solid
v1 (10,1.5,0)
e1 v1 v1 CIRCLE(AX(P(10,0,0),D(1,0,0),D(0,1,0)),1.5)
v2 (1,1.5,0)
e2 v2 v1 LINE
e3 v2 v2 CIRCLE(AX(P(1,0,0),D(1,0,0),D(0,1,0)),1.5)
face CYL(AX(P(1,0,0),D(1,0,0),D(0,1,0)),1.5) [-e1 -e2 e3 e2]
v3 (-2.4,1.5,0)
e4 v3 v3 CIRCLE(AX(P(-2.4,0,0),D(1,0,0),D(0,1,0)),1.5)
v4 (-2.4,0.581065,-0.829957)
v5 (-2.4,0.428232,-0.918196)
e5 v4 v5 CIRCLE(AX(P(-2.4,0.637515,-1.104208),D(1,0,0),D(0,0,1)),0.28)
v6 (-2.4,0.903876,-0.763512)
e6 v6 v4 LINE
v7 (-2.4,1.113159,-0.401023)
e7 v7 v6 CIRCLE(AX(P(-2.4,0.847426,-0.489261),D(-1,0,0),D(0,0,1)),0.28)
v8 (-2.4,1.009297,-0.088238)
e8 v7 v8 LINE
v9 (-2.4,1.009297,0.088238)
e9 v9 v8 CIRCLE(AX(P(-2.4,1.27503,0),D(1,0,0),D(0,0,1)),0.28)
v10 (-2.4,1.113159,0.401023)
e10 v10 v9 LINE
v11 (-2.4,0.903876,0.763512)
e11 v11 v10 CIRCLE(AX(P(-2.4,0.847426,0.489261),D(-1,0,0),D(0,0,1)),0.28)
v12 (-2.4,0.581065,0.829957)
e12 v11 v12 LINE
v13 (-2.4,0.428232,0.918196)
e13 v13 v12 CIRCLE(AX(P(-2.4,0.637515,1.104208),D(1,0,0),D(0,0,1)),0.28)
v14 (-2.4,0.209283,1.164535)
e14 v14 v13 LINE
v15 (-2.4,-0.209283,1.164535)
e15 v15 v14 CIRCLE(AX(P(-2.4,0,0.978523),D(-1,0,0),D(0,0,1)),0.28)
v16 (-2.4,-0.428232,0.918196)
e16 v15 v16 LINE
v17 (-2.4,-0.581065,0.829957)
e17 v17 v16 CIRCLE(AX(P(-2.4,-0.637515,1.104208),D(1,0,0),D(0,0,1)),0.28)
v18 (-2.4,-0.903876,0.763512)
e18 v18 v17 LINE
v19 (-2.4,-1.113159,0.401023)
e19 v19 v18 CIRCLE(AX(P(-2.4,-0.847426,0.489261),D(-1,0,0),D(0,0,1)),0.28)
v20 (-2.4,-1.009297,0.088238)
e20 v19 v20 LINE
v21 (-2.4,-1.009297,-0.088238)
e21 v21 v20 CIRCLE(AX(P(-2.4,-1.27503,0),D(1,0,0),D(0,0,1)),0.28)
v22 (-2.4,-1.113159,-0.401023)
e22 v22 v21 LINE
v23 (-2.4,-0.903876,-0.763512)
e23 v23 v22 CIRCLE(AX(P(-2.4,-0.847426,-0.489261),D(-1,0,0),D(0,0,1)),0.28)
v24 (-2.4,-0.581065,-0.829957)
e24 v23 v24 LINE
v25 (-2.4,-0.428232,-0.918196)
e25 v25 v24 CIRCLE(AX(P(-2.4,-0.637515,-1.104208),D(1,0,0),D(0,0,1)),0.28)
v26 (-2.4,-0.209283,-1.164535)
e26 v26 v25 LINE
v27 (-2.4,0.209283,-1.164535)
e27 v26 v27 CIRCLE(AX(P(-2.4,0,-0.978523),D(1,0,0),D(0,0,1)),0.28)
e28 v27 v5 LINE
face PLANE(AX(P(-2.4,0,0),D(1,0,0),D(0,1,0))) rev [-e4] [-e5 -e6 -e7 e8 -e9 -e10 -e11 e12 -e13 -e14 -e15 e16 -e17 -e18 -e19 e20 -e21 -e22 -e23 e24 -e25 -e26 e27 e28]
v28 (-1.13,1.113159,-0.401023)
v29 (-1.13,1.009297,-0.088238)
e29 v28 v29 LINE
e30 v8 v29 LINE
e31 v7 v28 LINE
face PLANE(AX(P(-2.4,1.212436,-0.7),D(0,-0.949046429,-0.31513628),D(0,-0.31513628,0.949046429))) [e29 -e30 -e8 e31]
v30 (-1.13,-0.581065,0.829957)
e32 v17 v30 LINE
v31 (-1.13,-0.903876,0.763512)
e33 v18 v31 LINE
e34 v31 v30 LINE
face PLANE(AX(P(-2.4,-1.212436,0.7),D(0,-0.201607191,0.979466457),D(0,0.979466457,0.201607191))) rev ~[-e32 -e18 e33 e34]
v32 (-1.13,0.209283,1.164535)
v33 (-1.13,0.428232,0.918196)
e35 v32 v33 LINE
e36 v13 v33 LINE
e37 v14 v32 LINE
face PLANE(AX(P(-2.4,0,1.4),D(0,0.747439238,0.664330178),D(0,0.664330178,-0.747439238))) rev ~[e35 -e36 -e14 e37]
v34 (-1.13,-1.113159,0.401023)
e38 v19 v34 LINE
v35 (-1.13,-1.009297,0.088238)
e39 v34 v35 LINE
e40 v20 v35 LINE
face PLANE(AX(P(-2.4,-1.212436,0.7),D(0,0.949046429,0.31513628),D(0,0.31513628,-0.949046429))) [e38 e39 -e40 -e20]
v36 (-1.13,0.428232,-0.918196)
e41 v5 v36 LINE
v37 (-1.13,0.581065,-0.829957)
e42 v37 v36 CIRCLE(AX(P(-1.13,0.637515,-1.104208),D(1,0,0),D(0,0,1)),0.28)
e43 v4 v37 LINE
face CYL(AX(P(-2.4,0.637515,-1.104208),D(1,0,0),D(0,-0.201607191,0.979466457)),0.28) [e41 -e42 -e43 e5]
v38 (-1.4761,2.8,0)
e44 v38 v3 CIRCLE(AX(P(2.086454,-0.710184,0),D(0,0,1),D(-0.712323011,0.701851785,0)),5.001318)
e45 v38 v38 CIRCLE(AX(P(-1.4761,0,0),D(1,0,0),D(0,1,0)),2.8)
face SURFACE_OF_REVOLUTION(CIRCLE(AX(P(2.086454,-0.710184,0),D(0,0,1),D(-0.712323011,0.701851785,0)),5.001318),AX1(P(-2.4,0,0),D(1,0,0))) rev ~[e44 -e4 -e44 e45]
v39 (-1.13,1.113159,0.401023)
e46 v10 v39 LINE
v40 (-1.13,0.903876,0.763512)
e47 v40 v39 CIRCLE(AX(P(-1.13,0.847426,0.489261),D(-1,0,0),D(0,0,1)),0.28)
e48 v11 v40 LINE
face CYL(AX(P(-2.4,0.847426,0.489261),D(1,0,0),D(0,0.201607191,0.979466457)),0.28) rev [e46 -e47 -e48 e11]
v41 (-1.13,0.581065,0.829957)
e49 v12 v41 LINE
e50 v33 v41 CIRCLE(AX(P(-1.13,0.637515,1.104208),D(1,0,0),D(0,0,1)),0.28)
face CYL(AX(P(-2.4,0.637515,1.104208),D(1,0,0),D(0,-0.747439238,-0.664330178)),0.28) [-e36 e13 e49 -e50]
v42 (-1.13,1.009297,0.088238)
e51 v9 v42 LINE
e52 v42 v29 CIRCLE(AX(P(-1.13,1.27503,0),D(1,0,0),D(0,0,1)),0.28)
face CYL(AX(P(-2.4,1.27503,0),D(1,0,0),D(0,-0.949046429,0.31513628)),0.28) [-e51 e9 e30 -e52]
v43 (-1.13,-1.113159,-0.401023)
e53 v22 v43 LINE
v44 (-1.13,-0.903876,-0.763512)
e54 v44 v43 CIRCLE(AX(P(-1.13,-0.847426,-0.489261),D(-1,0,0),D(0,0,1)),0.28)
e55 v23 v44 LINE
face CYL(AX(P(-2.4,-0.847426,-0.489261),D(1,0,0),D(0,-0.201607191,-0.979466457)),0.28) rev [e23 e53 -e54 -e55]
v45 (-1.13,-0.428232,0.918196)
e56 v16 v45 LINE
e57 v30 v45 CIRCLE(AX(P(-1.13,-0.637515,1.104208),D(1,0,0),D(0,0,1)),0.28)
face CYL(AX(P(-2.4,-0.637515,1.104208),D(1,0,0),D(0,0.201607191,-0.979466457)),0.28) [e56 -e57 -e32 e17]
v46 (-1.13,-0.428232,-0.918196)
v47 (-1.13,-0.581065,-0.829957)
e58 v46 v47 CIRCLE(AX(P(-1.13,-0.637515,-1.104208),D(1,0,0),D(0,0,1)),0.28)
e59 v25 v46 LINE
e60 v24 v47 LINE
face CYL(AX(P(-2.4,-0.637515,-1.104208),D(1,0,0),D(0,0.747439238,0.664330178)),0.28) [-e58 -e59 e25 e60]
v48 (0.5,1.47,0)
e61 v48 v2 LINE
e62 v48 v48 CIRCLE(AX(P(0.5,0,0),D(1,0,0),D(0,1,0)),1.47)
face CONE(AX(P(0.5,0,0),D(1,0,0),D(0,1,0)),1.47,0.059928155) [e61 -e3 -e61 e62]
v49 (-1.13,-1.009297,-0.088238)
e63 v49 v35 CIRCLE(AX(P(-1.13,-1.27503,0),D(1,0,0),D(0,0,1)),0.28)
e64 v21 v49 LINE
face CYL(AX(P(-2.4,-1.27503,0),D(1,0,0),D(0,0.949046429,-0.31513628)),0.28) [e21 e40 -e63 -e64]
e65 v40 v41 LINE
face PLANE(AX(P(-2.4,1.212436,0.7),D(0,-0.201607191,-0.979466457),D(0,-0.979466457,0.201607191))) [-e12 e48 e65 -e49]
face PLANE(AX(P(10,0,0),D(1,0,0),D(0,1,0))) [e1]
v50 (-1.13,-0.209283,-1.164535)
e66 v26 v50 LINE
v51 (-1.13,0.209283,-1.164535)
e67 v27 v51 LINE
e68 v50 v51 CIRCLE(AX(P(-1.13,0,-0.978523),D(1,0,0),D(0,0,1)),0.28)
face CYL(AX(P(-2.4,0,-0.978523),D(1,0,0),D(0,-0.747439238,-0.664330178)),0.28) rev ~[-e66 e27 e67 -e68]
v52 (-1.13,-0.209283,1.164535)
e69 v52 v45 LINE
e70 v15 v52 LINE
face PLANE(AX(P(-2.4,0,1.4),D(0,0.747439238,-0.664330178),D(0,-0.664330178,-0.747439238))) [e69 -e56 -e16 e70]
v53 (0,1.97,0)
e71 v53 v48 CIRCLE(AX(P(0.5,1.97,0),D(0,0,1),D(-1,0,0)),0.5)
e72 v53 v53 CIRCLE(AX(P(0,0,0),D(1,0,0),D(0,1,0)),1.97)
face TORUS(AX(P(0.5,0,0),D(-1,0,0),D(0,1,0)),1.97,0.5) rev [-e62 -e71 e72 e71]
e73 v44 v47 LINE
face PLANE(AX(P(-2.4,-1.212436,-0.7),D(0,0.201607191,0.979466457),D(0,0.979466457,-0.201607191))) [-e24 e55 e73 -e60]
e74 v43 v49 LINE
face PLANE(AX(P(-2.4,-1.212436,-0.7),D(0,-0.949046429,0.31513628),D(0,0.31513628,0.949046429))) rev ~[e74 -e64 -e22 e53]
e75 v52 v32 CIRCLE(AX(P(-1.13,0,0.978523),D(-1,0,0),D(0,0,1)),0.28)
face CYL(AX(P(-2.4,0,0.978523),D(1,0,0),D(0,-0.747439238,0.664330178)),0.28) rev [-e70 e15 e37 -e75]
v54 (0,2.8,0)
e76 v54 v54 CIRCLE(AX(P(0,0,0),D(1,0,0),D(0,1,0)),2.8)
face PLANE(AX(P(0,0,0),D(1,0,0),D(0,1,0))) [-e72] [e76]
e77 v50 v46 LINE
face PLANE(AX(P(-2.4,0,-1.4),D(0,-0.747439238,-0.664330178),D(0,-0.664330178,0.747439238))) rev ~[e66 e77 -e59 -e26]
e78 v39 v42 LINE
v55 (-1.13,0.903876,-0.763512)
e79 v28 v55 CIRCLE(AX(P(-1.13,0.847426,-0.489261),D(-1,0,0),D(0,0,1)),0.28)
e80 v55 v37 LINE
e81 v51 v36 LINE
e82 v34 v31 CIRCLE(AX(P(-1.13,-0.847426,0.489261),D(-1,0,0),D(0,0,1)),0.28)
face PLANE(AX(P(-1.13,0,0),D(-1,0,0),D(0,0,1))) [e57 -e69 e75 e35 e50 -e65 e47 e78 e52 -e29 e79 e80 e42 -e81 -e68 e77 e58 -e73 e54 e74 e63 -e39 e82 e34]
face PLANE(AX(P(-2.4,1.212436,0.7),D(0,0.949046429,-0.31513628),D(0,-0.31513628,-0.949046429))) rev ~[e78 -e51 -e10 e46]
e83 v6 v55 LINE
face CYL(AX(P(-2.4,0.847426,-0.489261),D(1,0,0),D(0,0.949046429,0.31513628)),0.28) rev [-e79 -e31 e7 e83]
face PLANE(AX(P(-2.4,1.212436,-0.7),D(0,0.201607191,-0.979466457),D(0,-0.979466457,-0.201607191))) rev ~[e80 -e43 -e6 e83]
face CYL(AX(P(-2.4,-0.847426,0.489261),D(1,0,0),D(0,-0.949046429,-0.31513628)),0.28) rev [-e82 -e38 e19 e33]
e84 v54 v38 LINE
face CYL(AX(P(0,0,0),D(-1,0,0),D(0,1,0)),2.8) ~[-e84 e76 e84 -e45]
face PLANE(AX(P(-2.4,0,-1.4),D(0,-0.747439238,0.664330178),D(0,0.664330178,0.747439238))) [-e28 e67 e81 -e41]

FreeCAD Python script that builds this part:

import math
import FreeCAD as App
import Part
import Sketcher
Q = App.Units.Quantity


def edges_at(feature, points):
    """Names of the edges that pass closest to the given points."""
    edges = feature.Shape.Edges
    near = lambda p: min(range(len(edges)), key=lambda i: edges[i].distToShape(Part.Vertex(*p))[0])
    return sorted({f"Edge{near(p) + 1}" for p in points})


def add_polygon(sketch, points):
    """Adds a closed chain of lines whose ends are joined by coincident constraints."""
    first, n = sketch.GeometryCount, len(points)
    for a, b in zip(points, points[1:] + points[:1]):
        sketch.addGeometry(Part.LineSegment(App.Vector(*a, 0), App.Vector(*b, 0)), False)
    for i in range(n):
        sketch.addConstraint(Sketcher.Constraint("Coincident", first + i, 2, first + (i + 1) % n, 1))

doc = App.newDocument("Part")
params = doc.addObject("Spreadsheet::Sheet", "Params")
for row, (alias, value) in enumerate([
    ("sketch1_radius", "0.5 mm"),
    ("sketch1_width", "9 mm"),
    ("sketch1_height", "1.5 mm"),
    ("sketch1_height2", "0.83 mm"),
    ("revolution_angle", "360 deg"),
    ("pocket1_length", "1.27 mm"),
    ("fillet_radius", "0.28 mm"),
], start=1):
    params.set(f"A{row}", alias)
    params.set(f"B{row}", "=" + value)
    params.setAlias(f"B{row}", alias)

body = doc.addObject("PartDesign::Body", "Body")

sketch1 = body.newObject("Sketcher::SketchObject", "Sketch")
sketch1.AttachmentSupport = (doc.getObject("XY_Plane"), [""])
sketch1.MapMode = "FlatFace"
sketch1.addGeometry([
    Part.LineSegment(App.Vector(-2.4, 1.5, 0), App.Vector(-2.4, 0, 0)),
    Part.LineSegment(App.Vector(-2.4, 0, 0), App.Vector(10, 0, 0)),
    Part.LineSegment(App.Vector(10, 0, 0), App.Vector(10, 1.5, 0)),
    Part.LineSegment(App.Vector(10, 1.5, 0), App.Vector(1, 1.5, 0)),
    Part.LineSegment(App.Vector(1, 1.5, 0), App.Vector(0.5, 1.47, 0)),
    Part.ArcOfCircle(Part.Circle(App.Vector(0.5, 1.97, 0), App.Vector(0, 0, 1), 0.5), math.radians(180), math.radians(270)),
    Part.LineSegment(App.Vector(0, 1.97, 0), App.Vector(0, 2.8, 0)),
    Part.LineSegment(App.Vector(0, 2.8, 0), App.Vector(-1.4761, 2.8, 0)),
    Part.ArcOfCircle(Part.Circle(App.Vector(2.086454, -0.710184, 0), App.Vector(0, 0, 1), 5.001318), math.radians(135.424238), math.radians(153.773532)),
], False)
sketch1.addConstraint([
    Sketcher.Constraint("Coincident", 0, 2, 1, 1),
    Sketcher.Constraint("Coincident", 1, 2, 2, 1),
    Sketcher.Constraint("Coincident", 2, 2, 3, 1),
    Sketcher.Constraint("Coincident", 3, 2, 4, 1),
    Sketcher.Constraint("Coincident", 4, 2, 5, 2),
    Sketcher.Constraint("Tangent", 5, 1, 6, 1),
    Sketcher.Constraint("Coincident", 6, 2, 7, 1),
    Sketcher.Constraint("Coincident", 7, 2, 8, 1),
    Sketcher.Constraint("Coincident", 8, 2, 0, 1),
    Sketcher.Constraint("Vertical", 0),
    Sketcher.Constraint("Horizontal", 1),
    Sketcher.Constraint("Vertical", 2),
    Sketcher.Constraint("Horizontal", 3),
    Sketcher.Constraint("Vertical", 6),
    Sketcher.Constraint("Horizontal", 7),
    Sketcher.Constraint("PointOnObject", 0, 2, -1),
    Sketcher.Constraint("PointOnObject", 5, 1, -2),
    Sketcher.Constraint("Horizontal", 3, 2, 8, 2),
    Sketcher.Constraint("Vertical", 5, 3, 4, 2),
    Sketcher.Constraint("Radius", 5, Q("0.5 mm")),
    Sketcher.Constraint("DistanceX", 3, 2, 3, 1, Q("9 mm")),
    Sketcher.Constraint("DistanceX", -1, 1, 1, 2, Q("10 mm")),
    Sketcher.Constraint("DistanceX", 0, 2, -1, 1, Q("2.4 mm")),
    Sketcher.Constraint("DistanceY", 0, 2, 0, 1, Q("1.5 mm")),
    Sketcher.Constraint("DistanceY", 6, 1, 6, 2, Q("0.83 mm")),
    Sketcher.Constraint("DistanceY", -1, 1, 6, 2, Q("2.8 mm")),
    Sketcher.Constraint("Radius", 8, Q("5.0013 mm")),
    Sketcher.Constraint("DistanceX", 7, 2, 7, 1, Q("1.476 mm")),
])
sketch1.setExpression("Constraints[19]", "Params.sketch1_radius")
sketch1.setExpression("Constraints[20]", "Params.sketch1_width")
sketch1.setExpression("Constraints[23]", "Params.sketch1_height")
sketch1.setExpression("Constraints[24]", "Params.sketch1_height2")
revolution = body.newObject("PartDesign::Revolution", "Revolution")
revolution.Profile = sketch1
revolution.ReferenceAxis = (sketch1, ["H_Axis"])
revolution.setExpression("Angle", "Params.revolution_angle")

sketch2 = body.newObject("Sketcher::SketchObject", "Sketch001")
sketch2.AttachmentSupport = (doc.getObject("YZ_Plane"), [""])
sketch2.MapMode = "FlatFace"
sketch2.AttachmentOffset = App.Placement(App.Vector(0, 0, -2.4), App.Rotation())
add_polygon(sketch2, [(0.49, -0.8487), (0, -1.4), (-0.49, -0.8487), (0, 0)])
sketch2.addConstraint([
    Sketcher.Constraint("Coincident", 2, 2, -1, 1),
    Sketcher.Constraint("Symmetric", 1, 2, 3, 2, -2),
    Sketcher.Constraint("PointOnObject", 0, 2, -2),
    Sketcher.Constraint("Angle", 2, Q("59.9999 deg")),
    Sketcher.Constraint("DistanceY", 0, 2, -1, 1, Q("1.4 mm")),
    Sketcher.Constraint("Angle", 0, Q("-131.631 deg")),
])
pocket1 = body.newObject("PartDesign::Pocket", "Pocket")
pocket1.Profile = sketch2
pocket1.setExpression("Length", "Params.pocket1_length")
pocket1.Reversed = True
doc.recompute()

polarpattern = body.newObject("PartDesign::PolarPattern", "PolarPattern")
polarpattern.Originals = [pocket1]
polarpattern.Axis = (doc.getObject("X_Axis"), [""])
polarpattern.Angle = 360
polarpattern.Occurrences = 6
body.Tip = polarpattern
doc.recompute()

fillet = body.newObject("PartDesign::Fillet", "Fillet")
fillet.Base = (polarpattern, edges_at(polarpattern, [
    (-1.765, -1.212, -0.7),
    (-1.765, -0.49, -0.849),
    (-1.765, -0.98, 0),
    (-1.765, -1.212, 0.7),
    (-1.765, -0.49, 0.849),
    (-1.765, 0, 1.4),
    (-1.765, 0.98, 0),
    (-1.765, 1.212, 0.7),
    (-1.765, 0.49, 0.849),
    (-1.765, 0.49, -0.849),
    (-1.765, 0, -1.4),
    (-1.765, 1.212, -0.7),
]))
fillet.setExpression("Radius", "Params.fillet_radius")

doc.recompute()
